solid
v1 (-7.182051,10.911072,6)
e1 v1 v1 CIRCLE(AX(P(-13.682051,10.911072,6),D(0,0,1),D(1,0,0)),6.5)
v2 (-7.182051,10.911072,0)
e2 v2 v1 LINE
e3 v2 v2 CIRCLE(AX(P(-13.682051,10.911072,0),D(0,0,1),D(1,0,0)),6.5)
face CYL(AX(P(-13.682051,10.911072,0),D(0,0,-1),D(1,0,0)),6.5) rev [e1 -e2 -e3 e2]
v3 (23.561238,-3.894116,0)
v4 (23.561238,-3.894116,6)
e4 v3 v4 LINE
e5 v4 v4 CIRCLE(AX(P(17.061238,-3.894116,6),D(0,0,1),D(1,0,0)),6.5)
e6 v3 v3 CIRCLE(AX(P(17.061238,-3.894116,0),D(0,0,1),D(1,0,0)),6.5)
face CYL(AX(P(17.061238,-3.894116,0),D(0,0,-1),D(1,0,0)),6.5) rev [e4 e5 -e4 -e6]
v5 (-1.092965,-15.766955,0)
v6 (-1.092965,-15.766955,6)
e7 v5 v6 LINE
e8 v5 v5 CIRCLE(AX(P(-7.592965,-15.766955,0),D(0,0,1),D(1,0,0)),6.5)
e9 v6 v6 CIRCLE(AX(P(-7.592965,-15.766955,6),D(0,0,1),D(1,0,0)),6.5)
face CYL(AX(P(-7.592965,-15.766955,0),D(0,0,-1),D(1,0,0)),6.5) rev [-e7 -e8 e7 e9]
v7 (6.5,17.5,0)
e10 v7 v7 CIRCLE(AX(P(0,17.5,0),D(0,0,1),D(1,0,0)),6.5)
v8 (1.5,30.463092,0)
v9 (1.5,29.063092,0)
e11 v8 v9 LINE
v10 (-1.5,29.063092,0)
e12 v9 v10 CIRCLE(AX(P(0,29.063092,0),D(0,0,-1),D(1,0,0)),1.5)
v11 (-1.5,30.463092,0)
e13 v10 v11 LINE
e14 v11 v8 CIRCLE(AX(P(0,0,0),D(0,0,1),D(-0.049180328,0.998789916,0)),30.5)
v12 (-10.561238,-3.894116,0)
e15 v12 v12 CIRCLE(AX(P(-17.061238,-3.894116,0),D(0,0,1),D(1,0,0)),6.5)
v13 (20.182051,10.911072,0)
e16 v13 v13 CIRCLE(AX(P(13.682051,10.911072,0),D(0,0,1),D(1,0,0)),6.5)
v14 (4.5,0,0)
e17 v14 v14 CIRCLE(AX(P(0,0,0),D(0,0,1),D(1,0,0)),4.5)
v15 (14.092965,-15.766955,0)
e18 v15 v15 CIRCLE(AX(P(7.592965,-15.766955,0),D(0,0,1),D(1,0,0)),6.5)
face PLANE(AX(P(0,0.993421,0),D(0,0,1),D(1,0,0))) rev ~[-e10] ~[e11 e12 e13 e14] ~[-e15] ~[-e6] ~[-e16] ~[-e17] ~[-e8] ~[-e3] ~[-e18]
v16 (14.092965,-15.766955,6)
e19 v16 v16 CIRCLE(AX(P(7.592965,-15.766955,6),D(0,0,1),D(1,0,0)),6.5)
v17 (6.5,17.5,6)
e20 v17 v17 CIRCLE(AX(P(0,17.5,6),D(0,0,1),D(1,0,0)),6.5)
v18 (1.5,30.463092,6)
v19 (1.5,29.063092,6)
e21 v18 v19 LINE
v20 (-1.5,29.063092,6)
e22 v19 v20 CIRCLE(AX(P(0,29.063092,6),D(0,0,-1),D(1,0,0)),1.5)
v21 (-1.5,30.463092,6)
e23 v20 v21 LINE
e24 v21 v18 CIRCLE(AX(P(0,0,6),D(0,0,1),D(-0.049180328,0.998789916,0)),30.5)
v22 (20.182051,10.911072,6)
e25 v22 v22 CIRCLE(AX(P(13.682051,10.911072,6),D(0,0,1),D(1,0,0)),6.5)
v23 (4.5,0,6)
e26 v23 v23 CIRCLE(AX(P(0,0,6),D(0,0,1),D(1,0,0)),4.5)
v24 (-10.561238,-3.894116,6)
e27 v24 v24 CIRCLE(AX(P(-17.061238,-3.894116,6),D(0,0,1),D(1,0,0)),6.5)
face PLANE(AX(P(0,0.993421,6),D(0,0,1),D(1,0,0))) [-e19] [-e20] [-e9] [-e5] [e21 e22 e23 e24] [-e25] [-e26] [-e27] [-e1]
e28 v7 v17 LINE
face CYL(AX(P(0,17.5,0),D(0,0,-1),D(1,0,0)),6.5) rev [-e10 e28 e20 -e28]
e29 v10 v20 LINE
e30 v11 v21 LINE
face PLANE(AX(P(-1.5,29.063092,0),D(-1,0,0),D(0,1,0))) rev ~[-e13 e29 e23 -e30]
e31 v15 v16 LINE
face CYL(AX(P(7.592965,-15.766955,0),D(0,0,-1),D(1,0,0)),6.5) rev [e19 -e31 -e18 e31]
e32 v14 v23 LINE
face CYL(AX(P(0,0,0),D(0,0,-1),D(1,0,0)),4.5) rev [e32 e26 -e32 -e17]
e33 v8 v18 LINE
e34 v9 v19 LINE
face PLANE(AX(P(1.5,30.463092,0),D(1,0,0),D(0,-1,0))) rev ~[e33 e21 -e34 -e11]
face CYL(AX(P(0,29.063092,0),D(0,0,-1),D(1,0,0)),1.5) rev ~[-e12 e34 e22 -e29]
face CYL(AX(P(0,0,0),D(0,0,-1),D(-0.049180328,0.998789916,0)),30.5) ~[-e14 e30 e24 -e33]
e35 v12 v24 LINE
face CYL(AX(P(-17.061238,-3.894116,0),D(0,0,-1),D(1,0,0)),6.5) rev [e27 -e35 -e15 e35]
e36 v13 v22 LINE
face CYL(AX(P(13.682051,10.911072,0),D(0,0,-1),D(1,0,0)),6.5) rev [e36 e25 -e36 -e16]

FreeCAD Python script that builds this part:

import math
import FreeCAD as App
import Part
import Sketcher

V = App.Vector
Q = App.Units.Quantity

doc = App.newDocument("Part")
body = doc.addObject("PartDesign::Body", "Body")

# Sketch on XY plane
sketch1 = doc.addObject("Sketcher::SketchObject", "Sketch")
body.addObject(sketch1)
sketch1.AttachmentSupport = (doc.XY_Plane, [""])
sketch1.MapMode = "FlatFace"
sketch1.addGeometry([
    Part.LineSegment(V(-1.5, 29.1, 0), V(-1.5, 30.5, 0)),  # 0
    Part.ArcOfCircle(Part.Circle(V(0, 0, 0), V(0, 0, 1), 30.5), math.radians(93), math.radians(447)),  # 1
    Part.LineSegment(V(1.5, 30.5, 0), V(1.5, 29.1, 0)),  # 2
    Part.ArcOfCircle(Part.Circle(V(0, 29.1, 0), V(0, 0, 1), 1.5), math.radians(180), math.radians(360)),  # 3
    Part.Circle(V(-7.6, -15.8, 0), V(0, 0, 1), 6.5),  # 4
    Part.Circle(V(-17.1, -3.9, 0), V(0, 0, 1), 6.5),  # 5
    Part.Circle(V(7.6, -15.8, 0), V(0, 0, 1), 6.5),  # 6
    Part.Circle(V(0, 0, 0), V(0, 0, 1), 4.5),  # 7
    Part.Circle(V(17.1, -3.9, 0), V(0, 0, 1), 6.5),  # 8
    Part.Circle(V(-13.7, 10.9, 0), V(0, 0, 1), 6.5),  # 9
    Part.Circle(V(13.7, 10.9, 0), V(0, 0, 1), 6.5),  # 10
    Part.Circle(V(0, 17.5, 0), V(0, 0, 1), 6.5),  # 11
], False)
sketch1.addConstraint([
    Sketcher.Constraint("Coincident", 0, 2, 1, 1),
    Sketcher.Constraint("Coincident", 1, 2, 2, 1),
    Sketcher.Constraint("Tangent", 2, 2, 3, 2),
    Sketcher.Constraint("Tangent", 3, 1, 0, 1),
    Sketcher.Constraint("Vertical", 0),
    Sketcher.Constraint("Vertical", 2),
    Sketcher.Constraint("Coincident", 1, 3, -1, 1),
    Sketcher.Constraint("Coincident", 7, 3, -1, 1),
    Sketcher.Constraint("Equal", 4, 5),
    Sketcher.Constraint("Equal", 5, 6),
    Sketcher.Constraint("Equal", 6, 8),
    Sketcher.Constraint("Equal", 8, 9),
    Sketcher.Constraint("Equal", 9, 10),
    Sketcher.Constraint("Equal", 10, 11),
    Sketcher.Constraint("Symmetric", 4, 3, 6, 3, -2),
    Sketcher.Constraint("Symmetric", 5, 3, 8, 3, -2),
    Sketcher.Constraint("Symmetric", 9, 3, 10, 3, -2),
    Sketcher.Constraint("PointOnObject", 3, 3, -2),
    Sketcher.Constraint("PointOnObject", 11, 3, -2),
    Sketcher.Constraint("Diameter", 4, Q("13 mm")),
    Sketcher.Constraint("Diameter", 7, Q("9 mm")),
    Sketcher.Constraint("Radius", 1, Q("30.5 mm")),
    Sketcher.Constraint("Radius", 3, Q("1.5 mm")),
    Sketcher.Constraint("DistanceY", 0, 1, 0, 2, Q("1.4 mm")),
    Sketcher.Constraint("DistanceY", -1, 1, 11, 3, Q("17.5 mm")),
    Sketcher.Constraint("DistanceX", 9, 3, 10, 3, Q("27.364102 mm")),
    Sketcher.Constraint("DistanceX", 5, 3, -1, 1, Q("17.061238 mm")),
    Sketcher.Constraint("DistanceY", -1, 1, 9, 3, Q("10.911072 mm")),
    Sketcher.Constraint("DistanceY", 4, 3, 5, 3, Q("11.872839 mm")),
    Sketcher.Constraint("DistanceY", 5, 3, 3, 3, Q("32.957209 mm")),
    Sketcher.Constraint("DistanceX", 4, 3, 6, 3, Q("15.185931 mm")),
])
pad1 = doc.addObject("PartDesign::Pad", "Pad")
body.addObject(pad1)
pad1.Profile = sketch1
pad1.Length = 6

doc.recompute()
